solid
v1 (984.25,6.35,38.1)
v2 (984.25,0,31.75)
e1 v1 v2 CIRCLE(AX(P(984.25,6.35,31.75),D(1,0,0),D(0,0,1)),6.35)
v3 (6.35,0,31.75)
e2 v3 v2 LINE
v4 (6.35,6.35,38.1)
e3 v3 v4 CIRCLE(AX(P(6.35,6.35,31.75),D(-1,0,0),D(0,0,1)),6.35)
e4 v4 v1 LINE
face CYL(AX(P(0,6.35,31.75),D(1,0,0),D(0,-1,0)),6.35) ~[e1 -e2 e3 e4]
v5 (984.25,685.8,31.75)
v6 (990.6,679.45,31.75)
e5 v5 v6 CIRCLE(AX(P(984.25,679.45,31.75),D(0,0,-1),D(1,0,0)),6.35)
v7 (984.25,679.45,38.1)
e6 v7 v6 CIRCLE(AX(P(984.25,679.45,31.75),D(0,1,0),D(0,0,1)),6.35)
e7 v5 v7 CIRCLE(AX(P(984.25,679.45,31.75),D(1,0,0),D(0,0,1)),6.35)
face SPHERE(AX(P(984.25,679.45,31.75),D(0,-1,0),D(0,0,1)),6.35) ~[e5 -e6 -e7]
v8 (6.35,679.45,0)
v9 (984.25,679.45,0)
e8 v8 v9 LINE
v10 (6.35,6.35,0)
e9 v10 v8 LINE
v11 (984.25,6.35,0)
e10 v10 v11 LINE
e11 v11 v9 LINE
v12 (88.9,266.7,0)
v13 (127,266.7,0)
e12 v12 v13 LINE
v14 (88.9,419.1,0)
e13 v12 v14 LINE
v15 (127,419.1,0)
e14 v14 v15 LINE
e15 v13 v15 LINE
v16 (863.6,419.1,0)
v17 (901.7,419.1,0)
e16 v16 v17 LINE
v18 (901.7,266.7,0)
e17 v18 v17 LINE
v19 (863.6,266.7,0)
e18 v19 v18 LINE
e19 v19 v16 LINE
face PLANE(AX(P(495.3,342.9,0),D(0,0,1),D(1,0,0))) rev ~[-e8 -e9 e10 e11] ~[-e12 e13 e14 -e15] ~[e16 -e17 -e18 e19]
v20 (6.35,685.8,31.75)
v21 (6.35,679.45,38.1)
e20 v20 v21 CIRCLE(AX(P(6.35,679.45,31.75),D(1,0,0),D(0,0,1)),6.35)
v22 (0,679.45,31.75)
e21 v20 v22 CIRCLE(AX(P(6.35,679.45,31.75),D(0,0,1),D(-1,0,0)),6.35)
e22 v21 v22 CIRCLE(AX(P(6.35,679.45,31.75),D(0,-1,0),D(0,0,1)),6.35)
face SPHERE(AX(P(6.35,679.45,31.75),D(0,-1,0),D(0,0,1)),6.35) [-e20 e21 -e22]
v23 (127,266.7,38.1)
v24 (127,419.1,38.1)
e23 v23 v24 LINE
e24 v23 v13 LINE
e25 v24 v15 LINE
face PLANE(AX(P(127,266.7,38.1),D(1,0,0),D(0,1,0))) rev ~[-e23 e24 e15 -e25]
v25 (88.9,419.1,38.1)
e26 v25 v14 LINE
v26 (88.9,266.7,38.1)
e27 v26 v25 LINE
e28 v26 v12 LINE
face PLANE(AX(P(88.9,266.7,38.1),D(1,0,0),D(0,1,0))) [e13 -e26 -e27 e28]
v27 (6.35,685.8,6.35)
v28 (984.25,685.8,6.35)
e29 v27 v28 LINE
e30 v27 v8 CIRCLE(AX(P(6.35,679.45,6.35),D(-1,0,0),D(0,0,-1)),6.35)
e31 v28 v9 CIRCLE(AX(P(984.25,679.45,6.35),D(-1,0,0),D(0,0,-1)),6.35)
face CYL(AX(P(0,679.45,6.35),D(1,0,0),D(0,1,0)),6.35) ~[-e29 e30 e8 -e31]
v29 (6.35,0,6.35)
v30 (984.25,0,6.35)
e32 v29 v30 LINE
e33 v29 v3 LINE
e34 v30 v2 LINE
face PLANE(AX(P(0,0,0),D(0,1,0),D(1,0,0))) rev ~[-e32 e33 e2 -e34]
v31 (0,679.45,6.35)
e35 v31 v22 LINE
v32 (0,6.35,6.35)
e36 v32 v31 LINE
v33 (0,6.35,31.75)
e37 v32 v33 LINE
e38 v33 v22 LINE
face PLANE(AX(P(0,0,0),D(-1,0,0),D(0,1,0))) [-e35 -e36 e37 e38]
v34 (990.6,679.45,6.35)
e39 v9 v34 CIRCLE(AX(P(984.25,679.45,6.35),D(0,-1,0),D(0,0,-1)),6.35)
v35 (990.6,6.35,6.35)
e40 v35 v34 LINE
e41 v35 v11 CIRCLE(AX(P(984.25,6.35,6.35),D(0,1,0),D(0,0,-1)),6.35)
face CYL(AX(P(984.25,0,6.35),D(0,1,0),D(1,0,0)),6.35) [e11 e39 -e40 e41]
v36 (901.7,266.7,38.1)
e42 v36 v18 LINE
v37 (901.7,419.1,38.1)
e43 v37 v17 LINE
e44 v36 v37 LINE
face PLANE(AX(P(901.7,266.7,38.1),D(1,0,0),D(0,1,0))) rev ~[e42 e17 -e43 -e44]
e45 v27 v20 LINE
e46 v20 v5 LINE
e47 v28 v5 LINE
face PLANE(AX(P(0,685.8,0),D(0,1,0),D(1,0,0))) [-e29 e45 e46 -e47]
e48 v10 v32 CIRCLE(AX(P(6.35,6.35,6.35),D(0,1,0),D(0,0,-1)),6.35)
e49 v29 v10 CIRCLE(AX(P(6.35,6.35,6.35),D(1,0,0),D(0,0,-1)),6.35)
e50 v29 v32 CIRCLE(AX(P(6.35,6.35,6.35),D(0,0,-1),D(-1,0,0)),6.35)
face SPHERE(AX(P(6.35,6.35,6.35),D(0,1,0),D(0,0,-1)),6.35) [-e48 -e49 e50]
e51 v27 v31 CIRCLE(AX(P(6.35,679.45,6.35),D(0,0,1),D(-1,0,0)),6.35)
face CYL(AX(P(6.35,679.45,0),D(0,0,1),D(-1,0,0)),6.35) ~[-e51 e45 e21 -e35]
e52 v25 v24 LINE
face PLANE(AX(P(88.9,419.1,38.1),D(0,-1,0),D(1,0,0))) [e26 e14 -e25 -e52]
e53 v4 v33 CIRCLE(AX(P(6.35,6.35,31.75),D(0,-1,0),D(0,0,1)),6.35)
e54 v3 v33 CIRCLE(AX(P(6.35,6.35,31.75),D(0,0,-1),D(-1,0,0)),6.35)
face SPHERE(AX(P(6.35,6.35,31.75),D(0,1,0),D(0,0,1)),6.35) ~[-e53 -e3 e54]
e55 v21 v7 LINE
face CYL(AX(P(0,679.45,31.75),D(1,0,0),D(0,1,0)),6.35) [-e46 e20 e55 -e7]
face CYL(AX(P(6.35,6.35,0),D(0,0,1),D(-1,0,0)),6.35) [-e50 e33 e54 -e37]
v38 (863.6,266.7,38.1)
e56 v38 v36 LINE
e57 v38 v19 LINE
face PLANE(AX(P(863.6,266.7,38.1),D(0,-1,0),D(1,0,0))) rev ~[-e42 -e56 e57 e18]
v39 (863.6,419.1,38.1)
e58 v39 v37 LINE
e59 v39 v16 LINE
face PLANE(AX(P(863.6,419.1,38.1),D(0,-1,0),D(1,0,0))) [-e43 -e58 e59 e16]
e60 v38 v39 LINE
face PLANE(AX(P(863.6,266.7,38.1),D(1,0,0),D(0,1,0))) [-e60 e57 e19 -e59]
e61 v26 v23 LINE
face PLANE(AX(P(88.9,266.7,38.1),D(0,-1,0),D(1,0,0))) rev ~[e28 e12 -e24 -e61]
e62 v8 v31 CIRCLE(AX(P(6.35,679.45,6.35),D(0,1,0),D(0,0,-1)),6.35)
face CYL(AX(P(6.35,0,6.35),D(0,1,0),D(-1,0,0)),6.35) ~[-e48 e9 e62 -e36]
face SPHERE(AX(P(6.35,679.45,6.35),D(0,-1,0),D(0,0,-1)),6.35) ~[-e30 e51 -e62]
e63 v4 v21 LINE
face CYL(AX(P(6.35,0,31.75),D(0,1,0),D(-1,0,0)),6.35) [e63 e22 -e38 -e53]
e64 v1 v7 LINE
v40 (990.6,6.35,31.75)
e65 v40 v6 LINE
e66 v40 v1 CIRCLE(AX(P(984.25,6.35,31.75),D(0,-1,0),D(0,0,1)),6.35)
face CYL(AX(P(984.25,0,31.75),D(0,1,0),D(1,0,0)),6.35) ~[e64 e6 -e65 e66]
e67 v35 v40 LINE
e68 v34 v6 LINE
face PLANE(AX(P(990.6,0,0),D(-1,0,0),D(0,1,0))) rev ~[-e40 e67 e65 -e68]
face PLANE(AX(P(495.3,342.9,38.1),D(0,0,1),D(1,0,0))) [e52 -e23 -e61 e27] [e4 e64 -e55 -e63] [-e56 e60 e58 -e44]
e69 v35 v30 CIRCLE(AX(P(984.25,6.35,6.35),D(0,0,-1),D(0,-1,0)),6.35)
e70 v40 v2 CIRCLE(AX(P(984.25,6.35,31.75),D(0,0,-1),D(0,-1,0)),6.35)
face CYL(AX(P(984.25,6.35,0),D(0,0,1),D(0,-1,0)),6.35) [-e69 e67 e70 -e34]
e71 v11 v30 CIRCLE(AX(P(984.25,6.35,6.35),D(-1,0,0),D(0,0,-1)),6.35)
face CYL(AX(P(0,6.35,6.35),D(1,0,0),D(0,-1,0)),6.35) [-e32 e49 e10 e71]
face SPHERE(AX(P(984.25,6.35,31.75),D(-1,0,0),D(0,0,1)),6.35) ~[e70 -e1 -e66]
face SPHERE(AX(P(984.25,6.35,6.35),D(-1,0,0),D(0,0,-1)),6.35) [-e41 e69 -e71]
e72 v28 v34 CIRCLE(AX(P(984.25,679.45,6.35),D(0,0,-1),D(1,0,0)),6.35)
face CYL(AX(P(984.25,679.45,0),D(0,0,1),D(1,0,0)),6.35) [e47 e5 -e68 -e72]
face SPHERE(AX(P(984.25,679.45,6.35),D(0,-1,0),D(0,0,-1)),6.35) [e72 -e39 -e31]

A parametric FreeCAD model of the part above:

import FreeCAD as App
import Part
import Sketcher
from FreeCAD import Vector
Q = App.Units.Quantity


def add_polygon(sketch, points):
    """Adds a closed chain of lines whose ends are joined by coincident constraints."""
    first, n = sketch.GeometryCount, len(points)
    for a, b in zip(points, points[1:] + points[:1]):
        sketch.addGeometry(Part.LineSegment(App.Vector(*a, 0), App.Vector(*b, 0)), False)
    for i in range(n):
        sketch.addConstraint(Sketcher.Constraint("Coincident", first + i, 2, first + (i + 1) % n, 1))

doc = App.newDocument("Part")
body = doc.addObject("PartDesign::Body", "Body")

# Sketch on XY plane
sketch1 = doc.addObject("Sketcher::SketchObject", "Sketch")
body.addObject(sketch1)
sketch1.AttachmentSupport = (doc.XY_Plane, [""])
sketch1.MapMode = "FlatFace"
add_polygon(sketch1, [(0, 686), (0, 0), (991, 0), (991, 686)])  # lines 0-3
sketch1.addConstraint([
    Sketcher.Constraint("Vertical", 0),
    Sketcher.Constraint("Horizontal", 1),
    Sketcher.Constraint("Vertical", 2),
    Sketcher.Constraint("Horizontal", 3),
    Sketcher.Constraint("Coincident", 0, 2, -1, 1),
    Sketcher.Constraint("DistanceX", 1, 1, 1, 2, Q("39 in")),
    Sketcher.Constraint("DistanceY", 0, 2, 0, 1, Q("27 in")),
])
pad1 = doc.addObject("PartDesign::Pad", "Pad")
body.addObject(pad1)
pad1.Profile = sketch1
pad1.Length = Q("1.5 in")
doc.recompute()

fillet = doc.addObject("PartDesign::Fillet", "Fillet")
body.addObject(fillet)
fillet.Base = (pad1, ["Edge1"])
fillet.UseAllEdges = True
fillet.Radius = Q("0.25 in")

# Sketch on XY plane
sketch2 = doc.addObject("Sketcher::SketchObject", "Sketch001")
body.addObject(sketch2)
sketch2.AttachmentSupport = (doc.XY_Plane, [""])
sketch2.MapMode = "FlatFace"
sketch2.AttachmentOffset = App.Placement(Vector(0, 0, 1.5 * 25.4), App.Rotation())
add_polygon(sketch2, [(89, 419), (89, 267), (127, 267), (127, 419)])  # lines 0-3
add_polygon(sketch2, [(864, 419), (864, 267), (902, 267), (902, 419)])  # lines 4-7
sketch2.addConstraint([
    Sketcher.Constraint("Vertical", 0),
    Sketcher.Constraint("Horizontal", 1),
    Sketcher.Constraint("Vertical", 2),
    Sketcher.Constraint("Horizontal", 3),
    Sketcher.Constraint("Vertical", 4),
    Sketcher.Constraint("Horizontal", 5),
    Sketcher.Constraint("Vertical", 6),
    Sketcher.Constraint("Horizontal", 7),
    Sketcher.Constraint("Horizontal", 1, 2, 4, 2),
    Sketcher.Constraint("Horizontal", 3, 2, 6, 2),
    Sketcher.Constraint("Equal", 3, 5),
    Sketcher.Constraint("DistanceY", 0, 2, 0, 1, Q("6 in")),
    Sketcher.Constraint("DistanceX", 1, 1, 1, 2, Q("1.5 in")),
    Sketcher.Constraint("DistanceX", -1, 1, 1, 2, Q("5 in")),
    Sketcher.Constraint("DistanceX", -1, 1, 4, 2, Q("34 in")),
    Sketcher.Constraint("DistanceY", -1, 1, 0, 2, Q("10.5 in")),
])
pocket1 = doc.addObject("PartDesign::Pocket", "Pocket")
body.addObject(pocket1)
pocket1.Profile = sketch2
pocket1.Type = "ThroughAll"

doc.recompute()
